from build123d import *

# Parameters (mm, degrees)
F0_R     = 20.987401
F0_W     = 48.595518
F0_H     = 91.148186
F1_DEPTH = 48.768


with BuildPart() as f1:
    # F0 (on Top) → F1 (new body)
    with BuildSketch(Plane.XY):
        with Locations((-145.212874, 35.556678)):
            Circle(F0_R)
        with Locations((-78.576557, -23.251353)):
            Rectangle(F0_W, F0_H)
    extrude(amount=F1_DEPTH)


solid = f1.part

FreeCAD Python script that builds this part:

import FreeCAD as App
import Part
import Sketcher
from FreeCAD import Vector
Q = App.Units.Quantity

doc = App.newDocument("Part")
body = doc.addObject("PartDesign::Body", "Body")
body.AllowCompound = True

# Sketch on XY plane
sketch1 = doc.addObject("Sketcher::SketchObject", "Sketch")
body.addObject(sketch1)
sketch1.AttachmentSupport = (doc.XY_Plane, [""])
sketch1.MapMode = "FlatFace"
sketch1.addGeometry(Part.Circle(Vector(-145, 36, 0), Vector(0, 0, 1), 21), False)
sketch1.addGeometry(Part.LineSegment(Vector(-103, 22, 0), Vector(-103, -69, 0)), False)
sketch1.addGeometry(Part.LineSegment(Vector(-103, -69, 0), Vector(-54, -69, 0)), False)
sketch1.addGeometry(Part.LineSegment(Vector(-54, -69, 0), Vector(-54, 22, 0)), False)
sketch1.addGeometry(Part.LineSegment(Vector(-54, 22, 0), Vector(-103, 22, 0)), False)
sketch1.addConstraint(Sketcher.Constraint("Coincident", 1, 2, 2, 1))
sketch1.addConstraint(Sketcher.Constraint("Coincident", 2, 2, 3, 1))
sketch1.addConstraint(Sketcher.Constraint("Coincident", 3, 2, 4, 1))
sketch1.addConstraint(Sketcher.Constraint("Coincident", 4, 2, 1, 1))
sketch1.addConstraint(Sketcher.Constraint("Vertical", 1))
sketch1.addConstraint(Sketcher.Constraint("Horizontal", 2))
sketch1.addConstraint(Sketcher.Constraint("Vertical", 3))
sketch1.addConstraint(Sketcher.Constraint("Horizontal", 4))
sketch1.addConstraint(Sketcher.Constraint("Diameter", 0, 41.974802))
sketch1.addConstraint(Sketcher.Constraint("DistanceX", 2, 2, -1, 1, 54.278798))
sketch1.addConstraint(Sketcher.Constraint("DistanceX", 2, 1, 2, 2, 48.595518))
sketch1.addConstraint(Sketcher.Constraint("DistanceY", 1, 2, 1, 1, 91.148186))
sketch1.addConstraint(Sketcher.Constraint("DistanceY", -1, 1, 3, 2, 22.32274))
sketch1.addConstraint(Sketcher.Constraint("DistanceX", 0, 3, 1, 2, 42.338558))
sketch1.addConstraint(Sketcher.Constraint("DistanceY", -1, 1, 0, 3, 35.556678))
pad1 = doc.addObject("PartDesign::Pad", "Pad")
body.addObject(pad1)
pad1.Profile = sketch1
pad1.Length = Q("1.92 in")

doc.recompute()
